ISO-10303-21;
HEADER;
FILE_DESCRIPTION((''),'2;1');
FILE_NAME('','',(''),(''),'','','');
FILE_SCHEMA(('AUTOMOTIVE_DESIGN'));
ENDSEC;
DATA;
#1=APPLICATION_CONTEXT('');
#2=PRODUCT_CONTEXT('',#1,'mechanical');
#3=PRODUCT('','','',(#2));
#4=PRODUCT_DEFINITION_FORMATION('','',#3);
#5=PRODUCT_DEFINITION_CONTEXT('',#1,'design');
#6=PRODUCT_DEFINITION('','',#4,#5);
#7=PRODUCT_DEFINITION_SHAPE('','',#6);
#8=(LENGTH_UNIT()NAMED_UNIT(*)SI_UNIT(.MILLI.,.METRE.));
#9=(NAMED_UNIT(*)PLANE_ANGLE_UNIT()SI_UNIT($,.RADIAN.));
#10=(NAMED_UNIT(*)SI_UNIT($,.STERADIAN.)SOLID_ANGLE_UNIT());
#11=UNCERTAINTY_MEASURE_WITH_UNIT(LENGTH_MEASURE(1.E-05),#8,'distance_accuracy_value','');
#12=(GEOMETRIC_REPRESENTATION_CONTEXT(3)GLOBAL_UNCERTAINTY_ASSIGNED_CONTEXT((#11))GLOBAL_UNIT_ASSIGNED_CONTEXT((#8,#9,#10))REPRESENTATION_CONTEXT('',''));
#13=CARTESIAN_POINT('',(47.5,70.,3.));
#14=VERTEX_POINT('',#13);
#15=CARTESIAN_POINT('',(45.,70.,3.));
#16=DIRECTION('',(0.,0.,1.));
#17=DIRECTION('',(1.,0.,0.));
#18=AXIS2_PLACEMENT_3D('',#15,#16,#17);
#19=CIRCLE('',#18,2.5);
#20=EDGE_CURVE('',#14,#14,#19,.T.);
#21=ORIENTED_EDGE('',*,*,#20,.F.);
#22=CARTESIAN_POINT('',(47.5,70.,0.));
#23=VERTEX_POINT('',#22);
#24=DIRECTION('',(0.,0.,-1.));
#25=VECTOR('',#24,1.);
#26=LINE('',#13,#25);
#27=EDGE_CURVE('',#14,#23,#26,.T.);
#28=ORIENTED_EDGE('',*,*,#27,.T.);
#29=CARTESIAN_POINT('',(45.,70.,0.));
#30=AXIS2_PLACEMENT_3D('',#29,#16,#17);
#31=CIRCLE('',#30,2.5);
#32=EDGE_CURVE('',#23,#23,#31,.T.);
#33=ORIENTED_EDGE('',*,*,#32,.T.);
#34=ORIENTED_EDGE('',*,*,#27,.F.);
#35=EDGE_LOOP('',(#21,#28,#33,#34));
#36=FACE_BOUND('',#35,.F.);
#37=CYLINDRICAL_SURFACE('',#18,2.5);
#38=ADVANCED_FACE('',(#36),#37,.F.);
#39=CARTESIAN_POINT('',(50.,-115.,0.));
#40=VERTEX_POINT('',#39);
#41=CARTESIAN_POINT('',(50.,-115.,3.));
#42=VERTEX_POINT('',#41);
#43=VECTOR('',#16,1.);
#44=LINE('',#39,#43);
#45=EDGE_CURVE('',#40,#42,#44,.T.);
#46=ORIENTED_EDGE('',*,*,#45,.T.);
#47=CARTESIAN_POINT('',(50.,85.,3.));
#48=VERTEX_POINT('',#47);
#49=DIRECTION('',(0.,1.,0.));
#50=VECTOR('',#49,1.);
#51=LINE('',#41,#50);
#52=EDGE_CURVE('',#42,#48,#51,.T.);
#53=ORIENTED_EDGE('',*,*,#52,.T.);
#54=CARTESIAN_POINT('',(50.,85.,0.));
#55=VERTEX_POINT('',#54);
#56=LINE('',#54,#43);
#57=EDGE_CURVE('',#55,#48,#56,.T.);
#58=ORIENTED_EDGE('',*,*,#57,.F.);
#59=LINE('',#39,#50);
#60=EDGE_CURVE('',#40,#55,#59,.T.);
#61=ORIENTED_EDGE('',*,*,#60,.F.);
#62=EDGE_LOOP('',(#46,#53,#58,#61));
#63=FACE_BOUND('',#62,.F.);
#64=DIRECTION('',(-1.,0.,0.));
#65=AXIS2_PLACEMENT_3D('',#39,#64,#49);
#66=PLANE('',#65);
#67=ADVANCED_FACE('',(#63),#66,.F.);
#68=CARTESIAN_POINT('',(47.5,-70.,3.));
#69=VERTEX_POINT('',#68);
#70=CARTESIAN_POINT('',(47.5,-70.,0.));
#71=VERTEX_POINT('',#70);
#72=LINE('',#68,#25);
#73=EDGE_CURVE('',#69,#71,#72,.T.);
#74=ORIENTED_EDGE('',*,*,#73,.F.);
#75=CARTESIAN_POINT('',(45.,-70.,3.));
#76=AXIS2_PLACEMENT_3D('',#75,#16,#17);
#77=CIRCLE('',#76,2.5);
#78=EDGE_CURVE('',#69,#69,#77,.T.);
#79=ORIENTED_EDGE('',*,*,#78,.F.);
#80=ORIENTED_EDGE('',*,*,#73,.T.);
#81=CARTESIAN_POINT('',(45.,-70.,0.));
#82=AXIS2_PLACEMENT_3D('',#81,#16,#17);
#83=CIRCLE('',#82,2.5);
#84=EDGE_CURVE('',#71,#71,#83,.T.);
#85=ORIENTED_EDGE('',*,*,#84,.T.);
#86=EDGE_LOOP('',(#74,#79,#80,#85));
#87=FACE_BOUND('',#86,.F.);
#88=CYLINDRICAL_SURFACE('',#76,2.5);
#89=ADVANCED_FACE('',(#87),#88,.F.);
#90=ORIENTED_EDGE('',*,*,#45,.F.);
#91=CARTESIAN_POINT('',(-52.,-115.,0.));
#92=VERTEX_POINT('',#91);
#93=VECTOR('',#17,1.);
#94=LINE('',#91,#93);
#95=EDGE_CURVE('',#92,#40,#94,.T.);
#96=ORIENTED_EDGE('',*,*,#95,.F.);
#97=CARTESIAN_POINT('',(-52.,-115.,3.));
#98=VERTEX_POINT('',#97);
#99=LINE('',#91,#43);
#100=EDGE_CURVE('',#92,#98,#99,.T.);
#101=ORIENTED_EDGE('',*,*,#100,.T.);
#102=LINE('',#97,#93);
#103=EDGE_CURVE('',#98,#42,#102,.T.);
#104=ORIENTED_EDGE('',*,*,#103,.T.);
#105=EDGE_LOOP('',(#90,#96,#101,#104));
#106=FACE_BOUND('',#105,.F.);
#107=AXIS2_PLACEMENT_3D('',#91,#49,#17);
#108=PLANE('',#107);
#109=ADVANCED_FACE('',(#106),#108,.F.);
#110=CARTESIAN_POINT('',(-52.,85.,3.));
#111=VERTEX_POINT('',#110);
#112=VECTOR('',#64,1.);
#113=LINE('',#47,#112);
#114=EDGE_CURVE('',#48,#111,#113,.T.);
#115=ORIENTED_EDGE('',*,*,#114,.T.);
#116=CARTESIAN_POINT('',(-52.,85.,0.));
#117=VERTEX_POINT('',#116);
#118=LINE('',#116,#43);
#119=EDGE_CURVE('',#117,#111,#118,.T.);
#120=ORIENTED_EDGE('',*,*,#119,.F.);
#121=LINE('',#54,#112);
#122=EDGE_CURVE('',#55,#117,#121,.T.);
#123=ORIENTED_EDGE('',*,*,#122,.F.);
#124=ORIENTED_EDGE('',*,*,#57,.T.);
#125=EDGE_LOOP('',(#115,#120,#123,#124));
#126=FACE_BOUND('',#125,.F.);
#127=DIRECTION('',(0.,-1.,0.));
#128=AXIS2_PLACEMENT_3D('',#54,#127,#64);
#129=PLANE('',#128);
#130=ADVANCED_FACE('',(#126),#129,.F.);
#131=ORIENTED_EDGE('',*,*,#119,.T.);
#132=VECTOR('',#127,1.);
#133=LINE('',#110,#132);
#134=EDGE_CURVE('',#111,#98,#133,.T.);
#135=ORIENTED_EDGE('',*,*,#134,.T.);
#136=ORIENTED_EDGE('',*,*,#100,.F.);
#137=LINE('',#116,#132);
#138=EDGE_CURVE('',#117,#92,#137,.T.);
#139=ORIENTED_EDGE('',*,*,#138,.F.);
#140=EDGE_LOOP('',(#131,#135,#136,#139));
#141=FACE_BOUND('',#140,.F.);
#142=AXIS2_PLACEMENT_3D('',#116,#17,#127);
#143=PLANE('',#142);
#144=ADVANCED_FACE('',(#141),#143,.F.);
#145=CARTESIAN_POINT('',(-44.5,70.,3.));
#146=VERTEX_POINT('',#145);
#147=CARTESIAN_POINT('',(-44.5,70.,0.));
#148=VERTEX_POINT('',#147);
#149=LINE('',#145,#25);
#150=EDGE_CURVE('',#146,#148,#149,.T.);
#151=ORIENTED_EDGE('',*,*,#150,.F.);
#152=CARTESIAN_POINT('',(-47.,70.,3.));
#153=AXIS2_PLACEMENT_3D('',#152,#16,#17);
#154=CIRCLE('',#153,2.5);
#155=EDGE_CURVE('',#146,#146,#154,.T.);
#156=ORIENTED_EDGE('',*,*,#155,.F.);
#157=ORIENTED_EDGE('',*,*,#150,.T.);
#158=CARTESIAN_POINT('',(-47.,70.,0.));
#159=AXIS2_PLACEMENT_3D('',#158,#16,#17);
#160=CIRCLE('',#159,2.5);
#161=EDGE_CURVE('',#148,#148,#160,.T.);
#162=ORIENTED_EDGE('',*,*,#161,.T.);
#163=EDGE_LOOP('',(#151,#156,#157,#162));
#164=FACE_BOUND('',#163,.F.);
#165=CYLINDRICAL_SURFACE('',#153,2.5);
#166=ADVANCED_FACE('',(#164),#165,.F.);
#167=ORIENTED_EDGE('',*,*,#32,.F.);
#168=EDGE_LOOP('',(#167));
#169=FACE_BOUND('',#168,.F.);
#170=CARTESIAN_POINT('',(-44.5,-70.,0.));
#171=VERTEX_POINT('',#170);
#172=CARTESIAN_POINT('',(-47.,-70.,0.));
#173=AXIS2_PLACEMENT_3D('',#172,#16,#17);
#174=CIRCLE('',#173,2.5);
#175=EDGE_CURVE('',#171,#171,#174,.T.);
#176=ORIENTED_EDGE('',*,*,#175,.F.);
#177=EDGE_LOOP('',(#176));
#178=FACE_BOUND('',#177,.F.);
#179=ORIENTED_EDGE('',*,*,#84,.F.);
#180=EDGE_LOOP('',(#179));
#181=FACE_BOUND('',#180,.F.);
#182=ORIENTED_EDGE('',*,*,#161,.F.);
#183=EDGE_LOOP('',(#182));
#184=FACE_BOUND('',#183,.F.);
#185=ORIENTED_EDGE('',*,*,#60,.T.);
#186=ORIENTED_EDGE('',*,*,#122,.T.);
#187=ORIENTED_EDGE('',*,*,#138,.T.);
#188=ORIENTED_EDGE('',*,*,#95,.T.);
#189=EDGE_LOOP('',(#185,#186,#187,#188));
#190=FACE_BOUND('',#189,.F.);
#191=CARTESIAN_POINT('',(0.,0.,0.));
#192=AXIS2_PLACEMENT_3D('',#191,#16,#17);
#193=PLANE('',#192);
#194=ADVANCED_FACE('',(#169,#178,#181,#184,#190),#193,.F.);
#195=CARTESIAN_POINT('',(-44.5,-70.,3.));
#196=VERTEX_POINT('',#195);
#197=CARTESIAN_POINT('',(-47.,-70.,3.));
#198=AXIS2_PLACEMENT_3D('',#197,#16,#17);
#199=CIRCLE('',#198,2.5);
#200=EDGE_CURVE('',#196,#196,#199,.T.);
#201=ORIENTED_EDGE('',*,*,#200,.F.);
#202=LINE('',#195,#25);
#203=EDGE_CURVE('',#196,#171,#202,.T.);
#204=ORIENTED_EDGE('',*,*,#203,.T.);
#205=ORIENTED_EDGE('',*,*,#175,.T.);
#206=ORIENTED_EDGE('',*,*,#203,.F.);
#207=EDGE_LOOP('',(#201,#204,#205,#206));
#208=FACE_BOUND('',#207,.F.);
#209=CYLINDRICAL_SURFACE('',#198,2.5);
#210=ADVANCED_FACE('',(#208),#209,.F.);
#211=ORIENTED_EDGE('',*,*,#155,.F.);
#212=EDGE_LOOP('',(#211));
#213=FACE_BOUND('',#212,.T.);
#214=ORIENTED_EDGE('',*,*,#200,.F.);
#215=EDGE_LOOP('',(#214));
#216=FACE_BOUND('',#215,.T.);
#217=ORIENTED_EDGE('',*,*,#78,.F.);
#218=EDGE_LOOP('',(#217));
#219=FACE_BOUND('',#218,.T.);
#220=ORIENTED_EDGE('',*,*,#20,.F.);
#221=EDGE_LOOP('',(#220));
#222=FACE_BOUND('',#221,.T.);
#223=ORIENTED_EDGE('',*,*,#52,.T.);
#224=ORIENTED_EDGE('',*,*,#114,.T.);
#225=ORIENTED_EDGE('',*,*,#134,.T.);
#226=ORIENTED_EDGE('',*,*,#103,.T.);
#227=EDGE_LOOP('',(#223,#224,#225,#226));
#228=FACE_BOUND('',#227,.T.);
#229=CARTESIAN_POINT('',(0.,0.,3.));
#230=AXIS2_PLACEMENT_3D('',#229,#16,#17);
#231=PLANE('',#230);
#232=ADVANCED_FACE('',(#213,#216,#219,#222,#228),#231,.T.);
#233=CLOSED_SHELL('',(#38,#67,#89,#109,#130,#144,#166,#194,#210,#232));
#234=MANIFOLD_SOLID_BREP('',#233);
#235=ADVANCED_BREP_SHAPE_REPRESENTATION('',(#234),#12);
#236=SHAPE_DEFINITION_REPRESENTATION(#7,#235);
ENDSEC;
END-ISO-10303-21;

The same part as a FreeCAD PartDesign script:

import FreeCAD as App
import Part
import Sketcher

doc = App.newDocument("Part")
body = doc.addObject("PartDesign::Body", "Body")

sketch1 = body.newObject("Sketcher::SketchObject", "Sketch")
sketch1.AttachmentSupport = (doc.getObject("XY_Plane"), [""])
sketch1.MapMode = "FlatFace"
sketch1.addGeometry(Part.LineSegment(App.Vector(50, -115, 0), App.Vector(50, 85, 0)), False)
sketch1.addGeometry(Part.LineSegment(App.Vector(50, 85, 0), App.Vector(-52, 85, 0)), False)
sketch1.addGeometry(Part.LineSegment(App.Vector(-52, 85, 0), App.Vector(-52, -115, 0)), False)
sketch1.addGeometry(Part.LineSegment(App.Vector(-52, -115, 0), App.Vector(50, -115, 0)), False)
sketch1.addConstraint(Sketcher.Constraint("Coincident", 0, 2, 1, 1))
sketch1.addConstraint(Sketcher.Constraint("Coincident", 1, 2, 2, 1))
sketch1.addConstraint(Sketcher.Constraint("Coincident", 2, 2, 3, 1))
sketch1.addConstraint(Sketcher.Constraint("Coincident", 3, 2, 0, 1))
sketch1.addConstraint(Sketcher.Constraint("Vertical", 0))
sketch1.addConstraint(Sketcher.Constraint("Horizontal", 1))
sketch1.addConstraint(Sketcher.Constraint("Vertical", 2))
sketch1.addConstraint(Sketcher.Constraint("Horizontal", 3))
sketch1.addConstraint(Sketcher.Constraint("DistanceX", 1, 2, 1, 1, 102.0))
sketch1.addConstraint(Sketcher.Constraint("DistanceY", 0, 1, 0, 2, 200.0))
sketch1.addConstraint(Sketcher.Constraint("DistanceY", 2, 2, -1, 1, 115.0))
sketch1.addConstraint(Sketcher.Constraint("DistanceX", -1, 1, 0, 2, 50.0))
pad1 = body.newObject("PartDesign::Pad", "Pad")
pad1.Profile = sketch1
pad1.Length = 3

sketch2 = body.newObject("Sketcher::SketchObject", "Sketch001")
sketch2.AttachmentSupport = (doc.getObject("XY_Plane"), [""])
sketch2.MapMode = "FlatFace"
sketch2.AttachmentOffset = App.Placement(App.Vector(0, 0, 3), App.Rotation())
sketch2.addGeometry(Part.Circle(App.Vector(-47, 70, 0), App.Vector(0, 0, 1), 2.5), False)
sketch2.addGeometry(Part.Circle(App.Vector(45, 70, 0), App.Vector(0, 0, 1), 2.5), False)
sketch2.addGeometry(Part.Circle(App.Vector(45, -70, 0), App.Vector(0, 0, 1), 2.5), False)
sketch2.addGeometry(Part.Circle(App.Vector(-47, -70, 0), App.Vector(0, 0, 1), 2.5), False)
sketch2.addConstraint(Sketcher.Constraint("Equal", 0, 1))
sketch2.addConstraint(Sketcher.Constraint("Equal", 1, 2))
sketch2.addConstraint(Sketcher.Constraint("Equal", 2, 3))
sketch2.addConstraint(Sketcher.Constraint("Symmetric", 1, 3, 2, 3, -1))
sketch2.addConstraint(Sketcher.Constraint("Symmetric", 0, 3, 3, 3, -1))
sketch2.addConstraint(Sketcher.Constraint("Horizontal", 0, 3, 1, 3))
sketch2.addConstraint(Sketcher.Constraint("Diameter", 0, 5.0))
sketch2.addConstraint(Sketcher.Constraint("DistanceX", -1, 1, 1, 3, 45.0))
sketch2.addConstraint(Sketcher.Constraint("DistanceX", 0, 3, -1, 1, 47.0))
sketch2.addConstraint(Sketcher.Constraint("DistanceY", -1, 1, 0, 3, 70.0))
pocket1 = body.newObject("PartDesign::Pocket", "Pocket")
pocket1.Profile = sketch2
pocket1.Length = 3

doc.recompute()
